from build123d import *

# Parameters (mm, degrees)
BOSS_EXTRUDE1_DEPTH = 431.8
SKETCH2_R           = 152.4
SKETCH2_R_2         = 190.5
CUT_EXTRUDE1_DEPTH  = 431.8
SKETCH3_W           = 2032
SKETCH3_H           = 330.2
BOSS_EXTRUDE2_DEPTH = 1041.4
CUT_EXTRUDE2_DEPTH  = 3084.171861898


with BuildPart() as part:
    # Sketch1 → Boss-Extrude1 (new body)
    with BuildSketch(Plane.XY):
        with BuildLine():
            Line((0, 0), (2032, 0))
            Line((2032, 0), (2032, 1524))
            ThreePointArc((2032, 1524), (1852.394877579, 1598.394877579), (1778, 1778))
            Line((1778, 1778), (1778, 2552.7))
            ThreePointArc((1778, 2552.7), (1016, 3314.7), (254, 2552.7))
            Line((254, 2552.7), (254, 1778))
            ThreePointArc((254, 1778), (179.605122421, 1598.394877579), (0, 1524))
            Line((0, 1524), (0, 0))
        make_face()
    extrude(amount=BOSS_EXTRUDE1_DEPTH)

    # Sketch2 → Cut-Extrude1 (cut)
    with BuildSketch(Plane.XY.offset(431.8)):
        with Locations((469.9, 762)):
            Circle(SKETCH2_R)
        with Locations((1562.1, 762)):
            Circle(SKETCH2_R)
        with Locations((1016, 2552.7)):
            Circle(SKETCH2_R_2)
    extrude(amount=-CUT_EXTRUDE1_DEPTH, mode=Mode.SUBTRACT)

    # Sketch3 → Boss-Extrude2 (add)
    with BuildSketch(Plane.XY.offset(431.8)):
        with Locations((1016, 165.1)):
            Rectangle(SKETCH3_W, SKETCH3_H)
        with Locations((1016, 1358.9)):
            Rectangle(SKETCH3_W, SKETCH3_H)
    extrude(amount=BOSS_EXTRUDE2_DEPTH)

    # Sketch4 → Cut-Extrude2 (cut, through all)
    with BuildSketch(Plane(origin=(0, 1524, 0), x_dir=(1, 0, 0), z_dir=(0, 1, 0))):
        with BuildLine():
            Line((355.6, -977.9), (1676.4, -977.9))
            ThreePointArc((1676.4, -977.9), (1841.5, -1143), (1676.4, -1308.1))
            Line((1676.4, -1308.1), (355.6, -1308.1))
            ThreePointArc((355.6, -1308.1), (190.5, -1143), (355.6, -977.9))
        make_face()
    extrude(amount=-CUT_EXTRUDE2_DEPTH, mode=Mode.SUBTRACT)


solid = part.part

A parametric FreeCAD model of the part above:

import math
import FreeCAD as App
import Part
import Sketcher

V = App.Vector
Q = App.Units.Quantity

doc = App.newDocument("Part")
body = doc.addObject("PartDesign::Body", "Body")

# Sketch on XY plane
sketch1 = body.newObject("Sketcher::SketchObject", "Sketch")
sketch1.AttachmentSupport = (doc.getObject("XY_Plane"), [""])
sketch1.MapMode = "FlatFace"
sketch1.addGeometry(Part.LineSegment(V(0, 0, 0), V(2032, 0, 0)), False)
sketch1.addGeometry(Part.LineSegment(V(2032, 0, 0), V(2032, 1524, 0)), False)
sketch1.addGeometry(Part.ArcOfCircle(Part.Circle(V(2032, 1778, 0), V(0, 0, 1), 254), math.radians(-180), math.radians(-90)), False)
sketch1.addGeometry(Part.LineSegment(V(1778, 1778, 0), V(1778, 2553, 0)), False)
sketch1.addGeometry(Part.ArcOfCircle(Part.Circle(V(1016, 2553, 0), V(0, 0, 1), 762), math.radians(0), math.radians(180)), False)
sketch1.addGeometry(Part.LineSegment(V(254, 2553, 0), V(254, 1778, 0)), False)
sketch1.addGeometry(Part.ArcOfCircle(Part.Circle(V(0, 1778, 0), V(0, 0, 1), 254), math.radians(-90), math.radians(0)), False)
sketch1.addGeometry(Part.LineSegment(V(0, 1524, 0), V(0, 0, 0)), False)
sketch1.addConstraint(Sketcher.Constraint("Coincident", 0, 2, 1, 1))
sketch1.addConstraint(Sketcher.Constraint("Coincident", 1, 2, 2, 2))
sketch1.addConstraint(Sketcher.Constraint("Tangent", 2, 1, 3, 1))
sketch1.addConstraint(Sketcher.Constraint("Tangent", 3, 2, 4, 1))
sketch1.addConstraint(Sketcher.Constraint("Tangent", 4, 2, 5, 1))
sketch1.addConstraint(Sketcher.Constraint("Tangent", 5, 2, 6, 2))
sketch1.addConstraint(Sketcher.Constraint("Coincident", 6, 1, 7, 1))
sketch1.addConstraint(Sketcher.Constraint("Coincident", 7, 2, 0, 1))
sketch1.addConstraint(Sketcher.Constraint("Horizontal", 0))
sketch1.addConstraint(Sketcher.Constraint("Vertical", 1))
sketch1.addConstraint(Sketcher.Constraint("Vertical", 3))
sketch1.addConstraint(Sketcher.Constraint("Vertical", 5))
sketch1.addConstraint(Sketcher.Constraint("Vertical", 7))
sketch1.addConstraint(Sketcher.Constraint("Coincident", 7, 2, -1, 1))
sketch1.addConstraint(Sketcher.Constraint("Equal", 2, 6))
sketch1.addConstraint(Sketcher.Constraint("PointOnObject", 6, 3, -2))
sketch1.addConstraint(Sketcher.Constraint("Horizontal", 2, 3, 6, 3))
sketch1.addConstraint(Sketcher.Constraint("Vertical", 2, 3, 0, 2))
sketch1.addConstraint(Sketcher.Constraint("Radius", 2, Q("10 in")))
sketch1.addConstraint(Sketcher.Constraint("Radius", 4, Q("30 in")))
sketch1.addConstraint(Sketcher.Constraint("DistanceY", 1, 1, 1, 2, Q("60 in")))
sketch1.addConstraint(Sketcher.Constraint("DistanceY", 3, 1, 3, 2, Q("30.5 in")))
pad1 = body.newObject("PartDesign::Pad", "Pad")
pad1.Profile = sketch1
pad1.Length = Q("17 in")

# Sketch on XY plane
sketch2 = body.newObject("Sketcher::SketchObject", "Sketch001")
sketch2.AttachmentSupport = (doc.getObject("XY_Plane"), [""])
sketch2.MapMode = "FlatFace"
sketch2.AttachmentOffset = App.Placement(V(0, 0, 17 * 25.4), App.Rotation())
sketch2.addGeometry(Part.Circle(V(470, 762, 0), V(0, 0, 1), 152), False)
sketch2.addGeometry(Part.Circle(V(1562, 762, 0), V(0, 0, 1), 152), False)
sketch2.addGeometry(Part.Circle(V(1016, 2553, 0), V(0, 0, 1), 190), False)
sketch2.addConstraint(Sketcher.Constraint("Equal", 0, 1))
sketch2.addConstraint(Sketcher.Constraint("Horizontal", 0, 3, 1, 3))
sketch2.addConstraint(Sketcher.Constraint("Diameter", 0, Q("12 in")))
sketch2.addConstraint(Sketcher.Constraint("Diameter", 2, Q("15 in")))
sketch2.addConstraint(Sketcher.Constraint("DistanceY", -1, 1, 0, 3, Q("30 in")))
sketch2.addConstraint(Sketcher.Constraint("DistanceX", -1, 1, 2, 3, Q("40 in")))
sketch2.addConstraint(Sketcher.Constraint("DistanceX", 0, 3, 1, 3, Q("43 in")))
sketch2.addConstraint(Sketcher.Constraint("DistanceX", -1, 1, 0, 3, Q("18.5 in")))
sketch2.addConstraint(Sketcher.Constraint("DistanceY", -1, 1, 2, 3, Q("100.5 in")))
pocket1 = body.newObject("PartDesign::Pocket", "Pocket")
pocket1.Profile = sketch2
pocket1.Length = Q("17 in")

# Sketch on XY plane
sketch3 = body.newObject("Sketcher::SketchObject", "Sketch002")
sketch3.AttachmentSupport = (doc.getObject("XY_Plane"), [""])
sketch3.MapMode = "FlatFace"
sketch3.AttachmentOffset = App.Placement(V(0, 0, 17 * 25.4), App.Rotation())
sketch3.addGeometry(Part.LineSegment(V(0, 330, 0), V(0, 0, 0)), False)
sketch3.addGeometry(Part.LineSegment(V(0, 0, 0), V(2032, 0, 0)), False)
sketch3.addGeometry(Part.LineSegment(V(2032, 0, 0), V(2032, 330, 0)), False)
sketch3.addGeometry(Part.LineSegment(V(2032, 330, 0), V(0, 330, 0)), False)
sketch3.addGeometry(Part.LineSegment(V(0, 1524, 0), V(0, 1194, 0)), False)
sketch3.addGeometry(Part.LineSegment(V(0, 1194, 0), V(2032, 1194, 0)), False)
sketch3.addGeometry(Part.LineSegment(V(2032, 1194, 0), V(2032, 1524, 0)), False)
sketch3.addGeometry(Part.LineSegment(V(2032, 1524, 0), V(0, 1524, 0)), False)
sketch3.addConstraint(Sketcher.Constraint("Coincident", 0, 2, 1, 1))
sketch3.addConstraint(Sketcher.Constraint("Coincident", 1, 2, 2, 1))
sketch3.addConstraint(Sketcher.Constraint("Coincident", 2, 2, 3, 1))
sketch3.addConstraint(Sketcher.Constraint("Coincident", 3, 2, 0, 1))
sketch3.addConstraint(Sketcher.Constraint("Coincident", 4, 2, 5, 1))
sketch3.addConstraint(Sketcher.Constraint("Coincident", 5, 2, 6, 1))
sketch3.addConstraint(Sketcher.Constraint("Coincident", 6, 2, 7, 1))
sketch3.addConstraint(Sketcher.Constraint("Coincident", 7, 2, 4, 1))
sketch3.addConstraint(Sketcher.Constraint("Vertical", 0))
sketch3.addConstraint(Sketcher.Constraint("Horizontal", 1))
sketch3.addConstraint(Sketcher.Constraint("Vertical", 2))
sketch3.addConstraint(Sketcher.Constraint("Horizontal", 3))
sketch3.addConstraint(Sketcher.Constraint("Vertical", 4))
sketch3.addConstraint(Sketcher.Constraint("Horizontal", 5))
sketch3.addConstraint(Sketcher.Constraint("Vertical", 6))
sketch3.addConstraint(Sketcher.Constraint("Horizontal", 7))
sketch3.addConstraint(Sketcher.Constraint("Coincident", 0, 2, -1, 1))
sketch3.addConstraint(Sketcher.Constraint("PointOnObject", 4, 2, -2))
sketch3.addConstraint(Sketcher.Constraint("Vertical", 2, 2, 5, 2))
sketch3.addConstraint(Sketcher.Constraint("Equal", 2, 4))
sketch3.addConstraint(Sketcher.Constraint("DistanceX", 1, 1, 1, 2, Q("80 in")))
sketch3.addConstraint(Sketcher.Constraint("DistanceY", 0, 2, 0, 1, Q("13 in")))
sketch3.addConstraint(Sketcher.Constraint("DistanceY", -1, 1, 4, 2, Q("47 in")))
pad2 = body.newObject("PartDesign::Pad", "Pad001")
pad2.Profile = sketch3
pad2.Length = Q("41 in")

# Sketch on XZ plane
sketch4 = body.newObject("Sketcher::SketchObject", "Sketch003")
sketch4.AttachmentSupport = (doc.getObject("XZ_Plane"), [""])
sketch4.MapMode = "FlatFace"
sketch4.AttachmentOffset = App.Placement(V(0, 0, -60 * 25.4), App.Rotation())
sketch4.addGeometry(Part.LineSegment(V(1676, 978, 0), V(356, 978, 0)), False)
sketch4.addGeometry(Part.ArcOfCircle(Part.Circle(V(356, 1143, 0), V(0, 0, 1), 165), math.radians(90), math.radians(270)), False)
sketch4.addGeometry(Part.LineSegment(V(356, 1308, 0), V(1676, 1308, 0)), False)
sketch4.addGeometry(Part.ArcOfCircle(Part.Circle(V(1676, 1143, 0), V(0, 0, 1), 165), math.radians(-90), math.radians(90)), False)
sketch4.addConstraint(Sketcher.Constraint("Tangent", 0, 2, 1, 2))
sketch4.addConstraint(Sketcher.Constraint("Tangent", 1, 1, 2, 1))
sketch4.addConstraint(Sketcher.Constraint("Tangent", 2, 2, 3, 2))
sketch4.addConstraint(Sketcher.Constraint("Tangent", 3, 1, 0, 1))
sketch4.addConstraint(Sketcher.Constraint("Horizontal", 0))
sketch4.addConstraint(Sketcher.Constraint("Horizontal", 2))
sketch4.addConstraint(Sketcher.Constraint("Radius", 1, Q("6.5 in")))
sketch4.addConstraint(Sketcher.Constraint("DistanceX", 0, 2, 0, 1, Q("52 in")))
sketch4.addConstraint(Sketcher.Constraint("DistanceX", -1, 1, 1, 3, Q("14 in")))
sketch4.addConstraint(Sketcher.Constraint("DistanceY", -1, 1, 1, 3, Q("45 in")))
pocket2 = body.newObject("PartDesign::Pocket", "Pocket001")
pocket2.Profile = sketch4
pocket2.Type = "ThroughAll"
pocket2.Reversed = True

doc.recompute()
